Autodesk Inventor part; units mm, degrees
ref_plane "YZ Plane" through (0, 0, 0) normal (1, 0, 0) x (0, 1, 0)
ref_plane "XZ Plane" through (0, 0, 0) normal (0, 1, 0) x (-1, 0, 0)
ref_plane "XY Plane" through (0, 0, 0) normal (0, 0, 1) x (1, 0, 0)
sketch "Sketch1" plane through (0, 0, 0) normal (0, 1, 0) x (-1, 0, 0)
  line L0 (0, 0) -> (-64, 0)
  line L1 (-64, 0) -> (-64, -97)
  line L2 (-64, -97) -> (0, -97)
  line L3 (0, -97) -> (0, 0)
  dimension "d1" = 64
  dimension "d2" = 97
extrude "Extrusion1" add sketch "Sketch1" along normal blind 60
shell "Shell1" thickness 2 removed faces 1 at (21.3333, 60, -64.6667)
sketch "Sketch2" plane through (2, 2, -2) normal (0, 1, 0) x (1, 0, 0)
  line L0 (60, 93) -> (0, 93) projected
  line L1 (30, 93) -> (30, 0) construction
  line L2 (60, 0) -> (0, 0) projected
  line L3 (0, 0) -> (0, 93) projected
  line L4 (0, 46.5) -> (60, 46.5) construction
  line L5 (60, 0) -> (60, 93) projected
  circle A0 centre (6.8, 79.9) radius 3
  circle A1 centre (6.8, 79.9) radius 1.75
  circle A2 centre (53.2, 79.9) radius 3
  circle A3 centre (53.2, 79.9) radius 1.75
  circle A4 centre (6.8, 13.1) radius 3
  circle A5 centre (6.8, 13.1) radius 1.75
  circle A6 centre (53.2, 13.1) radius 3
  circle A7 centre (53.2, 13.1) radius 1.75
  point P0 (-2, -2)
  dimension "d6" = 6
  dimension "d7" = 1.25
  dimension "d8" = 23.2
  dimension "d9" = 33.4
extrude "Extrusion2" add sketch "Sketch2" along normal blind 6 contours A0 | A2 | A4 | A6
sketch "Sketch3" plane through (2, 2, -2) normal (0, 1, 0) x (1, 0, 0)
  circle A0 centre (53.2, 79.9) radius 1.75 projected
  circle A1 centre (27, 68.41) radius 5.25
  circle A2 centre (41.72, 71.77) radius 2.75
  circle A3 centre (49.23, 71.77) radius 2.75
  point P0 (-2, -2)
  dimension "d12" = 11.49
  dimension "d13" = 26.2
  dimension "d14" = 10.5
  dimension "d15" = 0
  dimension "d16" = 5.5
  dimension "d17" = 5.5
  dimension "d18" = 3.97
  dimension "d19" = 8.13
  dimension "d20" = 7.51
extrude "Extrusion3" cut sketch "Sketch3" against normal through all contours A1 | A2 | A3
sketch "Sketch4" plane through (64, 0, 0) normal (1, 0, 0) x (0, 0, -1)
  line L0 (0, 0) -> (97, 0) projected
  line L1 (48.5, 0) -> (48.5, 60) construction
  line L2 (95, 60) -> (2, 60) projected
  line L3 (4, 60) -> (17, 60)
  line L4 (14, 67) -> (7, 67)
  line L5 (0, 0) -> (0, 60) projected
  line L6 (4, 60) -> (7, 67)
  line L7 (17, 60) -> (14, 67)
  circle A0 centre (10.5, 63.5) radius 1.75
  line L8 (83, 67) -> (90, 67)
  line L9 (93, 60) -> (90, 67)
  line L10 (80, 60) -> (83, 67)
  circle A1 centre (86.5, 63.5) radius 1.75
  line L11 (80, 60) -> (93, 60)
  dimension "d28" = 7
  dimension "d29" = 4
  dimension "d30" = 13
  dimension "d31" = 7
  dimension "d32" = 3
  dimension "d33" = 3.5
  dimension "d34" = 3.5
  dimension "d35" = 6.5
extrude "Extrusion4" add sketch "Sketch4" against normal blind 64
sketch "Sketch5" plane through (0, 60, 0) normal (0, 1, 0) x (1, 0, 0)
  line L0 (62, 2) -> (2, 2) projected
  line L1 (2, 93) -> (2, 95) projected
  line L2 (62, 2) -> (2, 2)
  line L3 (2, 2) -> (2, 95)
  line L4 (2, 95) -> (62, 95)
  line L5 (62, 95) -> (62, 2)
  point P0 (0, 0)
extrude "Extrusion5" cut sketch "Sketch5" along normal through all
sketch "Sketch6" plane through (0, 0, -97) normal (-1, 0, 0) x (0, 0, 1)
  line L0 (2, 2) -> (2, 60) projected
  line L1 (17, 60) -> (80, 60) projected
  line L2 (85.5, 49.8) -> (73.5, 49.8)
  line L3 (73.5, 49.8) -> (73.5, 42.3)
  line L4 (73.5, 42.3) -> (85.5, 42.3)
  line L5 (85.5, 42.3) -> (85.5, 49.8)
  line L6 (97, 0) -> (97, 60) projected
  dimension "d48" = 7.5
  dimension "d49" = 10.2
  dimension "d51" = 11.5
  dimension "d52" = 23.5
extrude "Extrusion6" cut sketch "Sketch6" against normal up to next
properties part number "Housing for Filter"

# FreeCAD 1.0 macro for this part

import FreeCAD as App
import Part
import Sketcher

V = App.Vector
Q = App.Units.Quantity


def faces_at(feature, points):
    """Names of the faces that lie closest to the given points."""
    faces = feature.Shape.Faces
    near = lambda p: min(range(len(faces)), key=lambda i: faces[i].distToShape(Part.Vertex(*p))[0])
    return sorted({f"Face{near(p) + 1}" for p in points})


def add_polygon(sketch, points):
    """Adds a closed chain of lines whose ends are joined by coincident constraints."""
    first, n = sketch.GeometryCount, len(points)
    for a, b in zip(points, points[1:] + points[:1]):
        sketch.addGeometry(Part.LineSegment(App.Vector(*a, 0), App.Vector(*b, 0)), False)
    for i in range(n):
        sketch.addConstraint(Sketcher.Constraint("Coincident", first + i, 2, first + (i + 1) % n, 1))

doc = App.newDocument("Part")
body = doc.addObject("PartDesign::Body", "Body")

# Sketch on XZ plane
sketch1 = doc.addObject("Sketcher::SketchObject", "Sketch")
body.addObject(sketch1)
sketch1.AttachmentSupport = (doc.XZ_Plane, [""])
sketch1.MapMode = "FlatFace"
add_polygon(sketch1, [(0, -97), (0, 0), (64, 0), (64, -97)])  # lines 0-3
sketch1.addConstraint(Sketcher.Constraint("Vertical", 0))
sketch1.addConstraint(Sketcher.Constraint("Horizontal", 1))
sketch1.addConstraint(Sketcher.Constraint("Vertical", 2))
sketch1.addConstraint(Sketcher.Constraint("Horizontal", 3))
sketch1.addConstraint(Sketcher.Constraint("Coincident", 0, 2, -1, 1))
sketch1.addConstraint(Sketcher.Constraint("DistanceX", 1, 1, 1, 2, Q("64 mm")))
sketch1.addConstraint(Sketcher.Constraint("DistanceY", 0, 1, 0, 2, Q("97 mm")))
pad1 = doc.addObject("PartDesign::Pad", "Pad")
body.addObject(pad1)
pad1.Profile = sketch1
pad1.Length = 60
pad1.Reversed = True
doc.recompute()

thickness = doc.addObject("PartDesign::Thickness", "Thickness")
body.addObject(thickness)
thickness.Base = (pad1, faces_at(pad1, [(21.333, 60, -64.667)]))
thickness.Value = 2
thickness.Reversed = True
thickness.Join = "Intersection"

# Sketch on XZ plane
sketch2 = doc.addObject("Sketcher::SketchObject", "Sketch001")
body.addObject(sketch2)
sketch2.AttachmentSupport = (doc.XZ_Plane, [""])
sketch2.MapMode = "FlatFace"
sketch2.AttachmentOffset = App.Placement(V(0, 0, -2), App.Rotation())
sketch2.addGeometry(Part.Circle(V(8.8, -81.9, 0), V(0, 0, 1), 3), False)
sketch2.addGeometry(Part.Circle(V(8.8, -81.9, 0), V(0, 0, 1), 1.8), False)
sketch2.addGeometry(Part.Circle(V(55.2, -81.9, 0), V(0, 0, 1), 3), False)
sketch2.addGeometry(Part.Circle(V(55.2, -81.9, 0), V(0, 0, 1), 1.8), False)
sketch2.addGeometry(Part.Circle(V(8.8, -15.1, 0), V(0, 0, 1), 3), False)
sketch2.addGeometry(Part.Circle(V(8.8, -15.1, 0), V(0, 0, 1), 1.8), False)
sketch2.addGeometry(Part.Circle(V(55.2, -15.1, 0), V(0, 0, 1), 3), False)
sketch2.addGeometry(Part.Circle(V(55.2, -15.1, 0), V(0, 0, 1), 1.8), False)
sketch2.addConstraint(Sketcher.Constraint("Coincident", 1, 3, 0, 3))
sketch2.addConstraint(Sketcher.Constraint("Coincident", 3, 3, 2, 3))
sketch2.addConstraint(Sketcher.Constraint("Coincident", 5, 3, 4, 3))
sketch2.addConstraint(Sketcher.Constraint("Coincident", 7, 3, 6, 3))
sketch2.addConstraint(Sketcher.Constraint("Equal", 0, 2))
sketch2.addConstraint(Sketcher.Constraint("Equal", 1, 3))
sketch2.addConstraint(Sketcher.Constraint("Equal", 2, 4))
sketch2.addConstraint(Sketcher.Constraint("Equal", 3, 5))
sketch2.addConstraint(Sketcher.Constraint("Equal", 4, 6))
sketch2.addConstraint(Sketcher.Constraint("Equal", 5, 7))
sketch2.addConstraint(Sketcher.Constraint("Horizontal", 1, 3, 2, 3))
sketch2.addConstraint(Sketcher.Constraint("Horizontal", 5, 3, 6, 3))
sketch2.addConstraint(Sketcher.Constraint("Vertical", 1, 3, 4, 3))
sketch2.addConstraint(Sketcher.Constraint("Vertical", 3, 3, 6, 3))
sketch2.addConstraint(Sketcher.Constraint("Diameter", 0, Q("6 mm")))
sketch2.addConstraint(Sketcher.Constraint("Diameter", 1, Q("3.5 mm")))
sketch2.addConstraint(Sketcher.Constraint("DistanceX", -1, 1, 0, 3, Q("8.8 mm")))
sketch2.addConstraint(Sketcher.Constraint("DistanceY", 0, 3, -1, 1, Q("81.9 mm")))
sketch2.addConstraint(Sketcher.Constraint("DistanceX", -1, 1, 2, 3, Q("55.2 mm")))
sketch2.addConstraint(Sketcher.Constraint("DistanceY", 4, 3, -1, 1, Q("15.1 mm")))
pad2 = doc.addObject("PartDesign::Pad", "Pad001")
body.addObject(pad2)
pad2.Profile = sketch2
pad2.Length = 6
pad2.Reversed = True

# Sketch on XZ plane
sketch3 = doc.addObject("Sketcher::SketchObject", "Sketch002")
body.addObject(sketch3)
sketch3.AttachmentSupport = (doc.XZ_Plane, [""])
sketch3.MapMode = "FlatFace"
sketch3.AttachmentOffset = App.Placement(V(0, 0, -2), App.Rotation())
sketch3.addGeometry(Part.Circle(V(29, -70.4, 0), V(0, 0, 1), 5.2), False)
sketch3.addGeometry(Part.Circle(V(43.7, -73.8, 0), V(0, 0, 1), 2.8), False)
sketch3.addGeometry(Part.Circle(V(51.2, -73.8, 0), V(0, 0, 1), 2.8), False)
sketch3.addConstraint(Sketcher.Constraint("Equal", 1, 2))
sketch3.addConstraint(Sketcher.Constraint("Horizontal", 1, 3, 2, 3))
sketch3.addConstraint(Sketcher.Constraint("Diameter", 0, Q("10.5 mm")))
sketch3.addConstraint(Sketcher.Constraint("Diameter", 1, Q("5.5 mm")))
sketch3.addConstraint(Sketcher.Constraint("DistanceX", 1, 3, 2, 3, Q("7.51 mm")))
sketch3.addConstraint(Sketcher.Constraint("DistanceX", -1, 1, 0, 3, Q("29 mm")))
sketch3.addConstraint(Sketcher.Constraint("DistanceY", 0, 3, -1, 1, Q("70.41 mm")))
sketch3.addConstraint(Sketcher.Constraint("DistanceX", -1, 1, 1, 3, Q("43.72 mm")))
sketch3.addConstraint(Sketcher.Constraint("DistanceY", 1, 3, -1, 1, Q("73.77 mm")))
pocket1 = doc.addObject("PartDesign::Pocket", "Pocket")
body.addObject(pocket1)
pocket1.Profile = sketch3
pocket1.Type = "ThroughAll"
pocket1.Reversed = True

# Sketch on YZ plane
sketch4 = doc.addObject("Sketcher::SketchObject", "Sketch003")
body.addObject(sketch4)
sketch4.AttachmentSupport = (doc.YZ_Plane, [""])
sketch4.MapMode = "FlatFace"
sketch4.AttachmentOffset = App.Placement(V(0, 0, 64), App.Rotation())
add_polygon(sketch4, [(60, -4), (60, -17), (67, -14), (67, -7)])  # lines 0-3
sketch4.addGeometry(Part.Circle(V(63.5, -10.5, 0), V(0, 0, 1), 1.8), False)  # 4
add_polygon(sketch4, [(60, -80), (60, -93), (67, -90), (67, -83)])  # lines 5-8
sketch4.addGeometry(Part.Circle(V(63.5, -86.5, 0), V(0, 0, 1), 1.8), False)  # 9
sketch4.addConstraint(Sketcher.Constraint("Vertical", 0))
sketch4.addConstraint(Sketcher.Constraint("Vertical", 2))
sketch4.addConstraint(Sketcher.Constraint("Vertical", 5))
sketch4.addConstraint(Sketcher.Constraint("Vertical", 7))
sketch4.addConstraint(Sketcher.Constraint("Equal", 4, 9))
sketch4.addConstraint(Sketcher.Constraint("Parallel", 1, 6))
sketch4.addConstraint(Sketcher.Constraint("Parallel", 3, 8))
sketch4.addConstraint(Sketcher.Constraint("Vertical", 4, 3, 9, 3))
sketch4.addConstraint(Sketcher.Constraint("Vertical", 3, 2, 5, 2))
sketch4.addConstraint(Sketcher.Constraint("Vertical", 2, 2, 6, 2))
sketch4.addConstraint(Sketcher.Constraint("Equal", 0, 5))
sketch4.addConstraint(Sketcher.Constraint("Equal", 1, 3))
sketch4.addConstraint(Sketcher.Constraint("Diameter", 4, Q("3.5 mm")))
sketch4.addConstraint(Sketcher.Constraint("DistanceY", 0, 2, 0, 1, Q("13 mm")))
sketch4.addConstraint(Sketcher.Constraint("DistanceY", 2, 1, 2, 2, Q("7 mm")))
sketch4.addConstraint(Sketcher.Constraint("DistanceY", 2, 2, -1, 1, Q("7 mm")))
sketch4.addConstraint(Sketcher.Constraint("DistanceX", 0, 2, 1, 2, Q("7 mm")))
sketch4.addConstraint(Sketcher.Constraint("DistanceX", 0, 2, 4, 3, Q("3.5 mm")))
sketch4.addConstraint(Sketcher.Constraint("DistanceY", 0, 2, 4, 3, Q("6.5 mm")))
sketch4.addConstraint(Sketcher.Constraint("DistanceY", 5, 2, 9, 3, Q("6.5 mm")))
sketch4.addConstraint(Sketcher.Constraint("DistanceX", -1, 1, 0, 2, Q("60 mm")))
sketch4.addConstraint(Sketcher.Constraint("DistanceY", 5, 2, -1, 1, Q("93 mm")))
pad3 = doc.addObject("PartDesign::Pad", "Pad002")
body.addObject(pad3)
pad3.Profile = sketch4
pad3.Length = 64
pad3.Reversed = True

# Sketch on XZ plane
sketch5 = doc.addObject("Sketcher::SketchObject", "Sketch004")
body.addObject(sketch5)
sketch5.AttachmentSupport = (doc.XZ_Plane, [""])
sketch5.MapMode = "FlatFace"
sketch5.AttachmentOffset = App.Placement(V(0, 0, -60), App.Rotation())
add_polygon(sketch5, [(2, -2), (62, -2), (62, -95), (2, -95)])  # lines 0-3
sketch5.addConstraint(Sketcher.Constraint("Horizontal", 0))
sketch5.addConstraint(Sketcher.Constraint("Vertical", 1))
sketch5.addConstraint(Sketcher.Constraint("Horizontal", 2))
sketch5.addConstraint(Sketcher.Constraint("Vertical", 3))
sketch5.addConstraint(Sketcher.Constraint("DistanceX", 0, 1, 0, 2, Q("60 mm")))
sketch5.addConstraint(Sketcher.Constraint("DistanceY", 1, 2, 1, 1, Q("93 mm")))
sketch5.addConstraint(Sketcher.Constraint("DistanceX", -1, 1, 0, 2, Q("62 mm")))
sketch5.addConstraint(Sketcher.Constraint("DistanceY", 0, 2, -1, 1, Q("2 mm")))
pocket2 = doc.addObject("PartDesign::Pocket", "Pocket001")
body.addObject(pocket2)
pocket2.Profile = sketch5
pocket2.Type = "ThroughAll"

# Sketch on YZ plane
sketch6 = doc.addObject("Sketcher::SketchObject", "Sketch005")
body.addObject(sketch6)
sketch6.AttachmentSupport = (doc.YZ_Plane, [""])
sketch6.MapMode = "FlatFace"
add_polygon(sketch6, [(42, -12), (50, -12), (50, -24), (42, -24)])  # lines 0-3
sketch6.addConstraint(Sketcher.Constraint("Horizontal", 0))
sketch6.addConstraint(Sketcher.Constraint("Vertical", 1))
sketch6.addConstraint(Sketcher.Constraint("Horizontal", 2))
sketch6.addConstraint(Sketcher.Constraint("Vertical", 3))
sketch6.addConstraint(Sketcher.Constraint("DistanceX", 0, 1, 0, 2, Q("7.5 mm")))
sketch6.addConstraint(Sketcher.Constraint("DistanceY", 0, 2, -1, 1, Q("11.5 mm")))
sketch6.addConstraint(Sketcher.Constraint("DistanceY", 1, 2, -1, 1, Q("23.5 mm")))
sketch6.addConstraint(Sketcher.Constraint("DistanceX", -1, 1, 0, 2, Q("49.8 mm")))
pocket3 = doc.addObject("PartDesign::Pocket", "Pocket002")
body.addObject(pocket3)
pocket3.Profile = sketch6
pocket3.Type = "UpToFirst"
pocket3.Reversed = True

doc.recompute()
